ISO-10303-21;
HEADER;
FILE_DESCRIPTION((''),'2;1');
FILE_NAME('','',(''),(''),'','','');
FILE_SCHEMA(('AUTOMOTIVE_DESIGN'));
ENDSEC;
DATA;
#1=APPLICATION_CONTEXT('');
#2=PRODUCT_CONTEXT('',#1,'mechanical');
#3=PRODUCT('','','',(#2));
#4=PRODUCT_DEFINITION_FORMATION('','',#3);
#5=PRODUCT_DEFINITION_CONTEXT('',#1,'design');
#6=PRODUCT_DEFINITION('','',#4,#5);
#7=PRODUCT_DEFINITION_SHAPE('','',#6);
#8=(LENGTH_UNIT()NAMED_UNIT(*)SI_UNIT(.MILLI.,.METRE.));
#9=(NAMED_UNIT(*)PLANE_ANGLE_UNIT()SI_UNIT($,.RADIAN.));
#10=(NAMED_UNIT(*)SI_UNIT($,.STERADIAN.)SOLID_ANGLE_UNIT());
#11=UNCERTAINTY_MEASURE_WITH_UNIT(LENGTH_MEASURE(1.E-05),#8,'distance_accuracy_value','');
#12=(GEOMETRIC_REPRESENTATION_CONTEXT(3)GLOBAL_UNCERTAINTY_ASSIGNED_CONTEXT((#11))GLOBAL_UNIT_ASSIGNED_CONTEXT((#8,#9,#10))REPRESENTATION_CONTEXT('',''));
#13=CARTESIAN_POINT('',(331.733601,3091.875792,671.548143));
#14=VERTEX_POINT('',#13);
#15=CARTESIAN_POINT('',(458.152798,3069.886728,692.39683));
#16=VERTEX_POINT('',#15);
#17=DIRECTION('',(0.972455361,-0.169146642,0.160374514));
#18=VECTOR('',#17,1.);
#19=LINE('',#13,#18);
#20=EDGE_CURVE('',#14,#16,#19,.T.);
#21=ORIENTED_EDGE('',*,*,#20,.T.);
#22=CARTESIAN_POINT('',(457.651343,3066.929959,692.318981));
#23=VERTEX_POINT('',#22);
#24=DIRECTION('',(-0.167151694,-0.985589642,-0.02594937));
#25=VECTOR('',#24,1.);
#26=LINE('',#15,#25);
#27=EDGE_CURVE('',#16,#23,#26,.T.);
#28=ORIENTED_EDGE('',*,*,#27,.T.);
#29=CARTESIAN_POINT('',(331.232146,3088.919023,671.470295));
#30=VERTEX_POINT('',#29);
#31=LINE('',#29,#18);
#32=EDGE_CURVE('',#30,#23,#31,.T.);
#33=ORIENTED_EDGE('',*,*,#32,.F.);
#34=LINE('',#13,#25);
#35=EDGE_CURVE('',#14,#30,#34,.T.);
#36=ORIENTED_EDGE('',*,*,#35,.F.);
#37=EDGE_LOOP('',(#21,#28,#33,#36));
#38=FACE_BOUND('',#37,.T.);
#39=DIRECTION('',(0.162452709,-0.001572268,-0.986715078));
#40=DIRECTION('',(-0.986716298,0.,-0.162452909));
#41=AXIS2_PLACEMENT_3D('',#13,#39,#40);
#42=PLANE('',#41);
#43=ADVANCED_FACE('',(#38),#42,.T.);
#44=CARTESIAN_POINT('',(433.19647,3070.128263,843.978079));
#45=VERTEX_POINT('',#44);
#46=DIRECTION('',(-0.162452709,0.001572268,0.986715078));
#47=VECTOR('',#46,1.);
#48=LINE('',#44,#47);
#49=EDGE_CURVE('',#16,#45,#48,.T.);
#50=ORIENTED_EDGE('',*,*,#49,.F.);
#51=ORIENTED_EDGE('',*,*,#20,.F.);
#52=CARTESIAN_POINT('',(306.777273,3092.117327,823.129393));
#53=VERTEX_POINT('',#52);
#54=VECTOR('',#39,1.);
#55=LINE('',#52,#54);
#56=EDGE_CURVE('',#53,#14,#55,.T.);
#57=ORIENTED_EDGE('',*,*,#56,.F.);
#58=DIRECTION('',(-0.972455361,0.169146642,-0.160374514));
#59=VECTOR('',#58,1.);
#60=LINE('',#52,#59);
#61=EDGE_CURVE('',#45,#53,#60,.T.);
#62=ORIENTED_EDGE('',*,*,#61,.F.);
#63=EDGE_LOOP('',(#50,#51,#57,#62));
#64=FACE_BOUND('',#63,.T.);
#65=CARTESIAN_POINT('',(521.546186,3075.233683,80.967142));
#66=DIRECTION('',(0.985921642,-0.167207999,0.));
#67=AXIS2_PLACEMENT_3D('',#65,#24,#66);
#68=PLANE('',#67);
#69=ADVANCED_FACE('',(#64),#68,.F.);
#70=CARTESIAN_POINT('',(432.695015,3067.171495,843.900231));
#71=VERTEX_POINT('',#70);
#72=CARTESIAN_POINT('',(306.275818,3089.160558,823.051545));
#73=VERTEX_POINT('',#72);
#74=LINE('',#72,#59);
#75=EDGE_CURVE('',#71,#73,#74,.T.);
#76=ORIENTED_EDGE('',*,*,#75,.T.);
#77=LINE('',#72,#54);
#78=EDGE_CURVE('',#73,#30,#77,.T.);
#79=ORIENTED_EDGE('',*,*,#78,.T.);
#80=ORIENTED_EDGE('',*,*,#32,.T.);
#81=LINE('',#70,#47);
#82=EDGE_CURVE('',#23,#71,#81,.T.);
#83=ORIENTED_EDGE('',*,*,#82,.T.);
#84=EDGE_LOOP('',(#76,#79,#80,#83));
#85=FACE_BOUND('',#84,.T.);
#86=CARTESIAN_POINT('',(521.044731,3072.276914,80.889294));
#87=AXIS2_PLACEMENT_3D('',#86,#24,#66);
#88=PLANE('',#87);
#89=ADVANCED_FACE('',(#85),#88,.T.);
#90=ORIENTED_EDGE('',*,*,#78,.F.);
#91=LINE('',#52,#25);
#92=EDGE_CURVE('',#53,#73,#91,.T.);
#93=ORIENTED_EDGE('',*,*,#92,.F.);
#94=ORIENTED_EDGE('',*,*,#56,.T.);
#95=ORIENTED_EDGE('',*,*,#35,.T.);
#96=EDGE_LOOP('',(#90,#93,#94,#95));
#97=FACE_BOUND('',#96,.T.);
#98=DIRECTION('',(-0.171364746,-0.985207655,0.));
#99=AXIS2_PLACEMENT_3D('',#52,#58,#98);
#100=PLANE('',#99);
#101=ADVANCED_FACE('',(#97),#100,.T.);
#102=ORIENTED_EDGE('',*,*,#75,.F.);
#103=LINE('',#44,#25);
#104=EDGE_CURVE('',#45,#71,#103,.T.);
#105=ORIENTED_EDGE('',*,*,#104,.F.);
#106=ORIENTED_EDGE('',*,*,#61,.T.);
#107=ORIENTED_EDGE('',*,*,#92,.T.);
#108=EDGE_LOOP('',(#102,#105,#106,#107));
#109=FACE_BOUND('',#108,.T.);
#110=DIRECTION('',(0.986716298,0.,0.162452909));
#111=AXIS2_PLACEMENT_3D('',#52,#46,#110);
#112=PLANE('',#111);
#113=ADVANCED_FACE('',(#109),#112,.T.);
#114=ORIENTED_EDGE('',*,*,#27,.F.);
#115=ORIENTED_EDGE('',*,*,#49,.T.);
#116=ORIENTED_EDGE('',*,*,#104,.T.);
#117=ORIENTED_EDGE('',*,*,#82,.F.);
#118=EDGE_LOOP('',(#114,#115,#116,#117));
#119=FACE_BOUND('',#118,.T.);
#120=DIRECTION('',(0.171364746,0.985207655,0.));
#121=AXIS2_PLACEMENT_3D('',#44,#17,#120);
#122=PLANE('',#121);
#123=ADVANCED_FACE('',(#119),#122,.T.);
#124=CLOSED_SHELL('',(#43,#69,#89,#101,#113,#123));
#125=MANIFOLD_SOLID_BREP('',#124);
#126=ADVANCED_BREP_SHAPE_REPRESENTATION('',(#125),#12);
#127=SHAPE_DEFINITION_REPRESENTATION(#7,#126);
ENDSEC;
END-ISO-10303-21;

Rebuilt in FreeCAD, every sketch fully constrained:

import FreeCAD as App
import Part
import Sketcher
from FreeCAD import Vector
Q = App.Units.Quantity


def add_polygon(sketch, points):
    """Adds a closed chain of lines whose ends are joined by coincident constraints."""
    first, n = sketch.GeometryCount, len(points)
    for a, b in zip(points, points[1:] + points[:1]):
        sketch.addGeometry(Part.LineSegment(App.Vector(*a, 0), App.Vector(*b, 0)), False)
    for i in range(n):
        sketch.addConstraint(Sketcher.Constraint("Coincident", first + i, 2, first + (i + 1) % n, 1))

doc = App.newDocument("Part")
params = doc.addObject("Spreadsheet::Sheet", "Params")
for row, (alias, value) in enumerate([
    ("sketch1_length", "130 mm"),
    ("pad1_length", "3 mm"),
], start=1):
    params.set(f"A{row}", alias)
    params.set(f"B{row}", "=" + value)
    params.setAlias(f"B{row}", alias)

body = doc.addObject("PartDesign::Body", "Body")

# Sketch on an angled plane
sketch1 = body.newObject("Sketcher::SketchObject", "Sketch")
sketch1.Placement = App.Placement(Vector(492.531821, 3075.376386, 146.83208), App.Rotation(Vector(0.940925169, -0.167327538, 0.29438295), Vector(-0.29448283, 0.024790193, 0.955335181), Vector(-0.167151694, -0.985589641, -0.02594937), "ZXY"))
add_polygon(sketch1, [(150, 683), (22, 701), (0, 549), (129, 531)])  # lines 0-3
sketch1.addConstraint(Sketcher.Constraint("Perpendicular", 0, 1))
sketch1.addConstraint(Sketcher.Constraint("Perpendicular", 1, 2))
sketch1.addConstraint(Sketcher.Constraint("Perpendicular", 2, 3))
sketch1.addConstraint(Sketcher.Constraint("Distance", 0, Q("130 mm")))
sketch1.addConstraint(Sketcher.Constraint("DistanceY", 1, 2, 0, 2, Q("152.166098 mm")))
sketch1.addConstraint(Sketcher.Constraint("DistanceX", -1, 1, 0, 2, Q("21.508048 mm")))
sketch1.addConstraint(Sketcher.Constraint("DistanceY", -1, 1, 0, 2, Q("701.207152 mm")))
sketch1.addConstraint(Sketcher.Constraint("DistanceY", -1, 1, 2, 2, Q("531.185141 mm")))
sketch1.setExpression("Constraints[7]", "Params.sketch1_length")
pad1 = body.newObject("PartDesign::Pad", "Pad")
pad1.Profile = sketch1
pad1.setExpression("Length", "Params.pad1_length")
pad1.Reversed = True

doc.recompute()
